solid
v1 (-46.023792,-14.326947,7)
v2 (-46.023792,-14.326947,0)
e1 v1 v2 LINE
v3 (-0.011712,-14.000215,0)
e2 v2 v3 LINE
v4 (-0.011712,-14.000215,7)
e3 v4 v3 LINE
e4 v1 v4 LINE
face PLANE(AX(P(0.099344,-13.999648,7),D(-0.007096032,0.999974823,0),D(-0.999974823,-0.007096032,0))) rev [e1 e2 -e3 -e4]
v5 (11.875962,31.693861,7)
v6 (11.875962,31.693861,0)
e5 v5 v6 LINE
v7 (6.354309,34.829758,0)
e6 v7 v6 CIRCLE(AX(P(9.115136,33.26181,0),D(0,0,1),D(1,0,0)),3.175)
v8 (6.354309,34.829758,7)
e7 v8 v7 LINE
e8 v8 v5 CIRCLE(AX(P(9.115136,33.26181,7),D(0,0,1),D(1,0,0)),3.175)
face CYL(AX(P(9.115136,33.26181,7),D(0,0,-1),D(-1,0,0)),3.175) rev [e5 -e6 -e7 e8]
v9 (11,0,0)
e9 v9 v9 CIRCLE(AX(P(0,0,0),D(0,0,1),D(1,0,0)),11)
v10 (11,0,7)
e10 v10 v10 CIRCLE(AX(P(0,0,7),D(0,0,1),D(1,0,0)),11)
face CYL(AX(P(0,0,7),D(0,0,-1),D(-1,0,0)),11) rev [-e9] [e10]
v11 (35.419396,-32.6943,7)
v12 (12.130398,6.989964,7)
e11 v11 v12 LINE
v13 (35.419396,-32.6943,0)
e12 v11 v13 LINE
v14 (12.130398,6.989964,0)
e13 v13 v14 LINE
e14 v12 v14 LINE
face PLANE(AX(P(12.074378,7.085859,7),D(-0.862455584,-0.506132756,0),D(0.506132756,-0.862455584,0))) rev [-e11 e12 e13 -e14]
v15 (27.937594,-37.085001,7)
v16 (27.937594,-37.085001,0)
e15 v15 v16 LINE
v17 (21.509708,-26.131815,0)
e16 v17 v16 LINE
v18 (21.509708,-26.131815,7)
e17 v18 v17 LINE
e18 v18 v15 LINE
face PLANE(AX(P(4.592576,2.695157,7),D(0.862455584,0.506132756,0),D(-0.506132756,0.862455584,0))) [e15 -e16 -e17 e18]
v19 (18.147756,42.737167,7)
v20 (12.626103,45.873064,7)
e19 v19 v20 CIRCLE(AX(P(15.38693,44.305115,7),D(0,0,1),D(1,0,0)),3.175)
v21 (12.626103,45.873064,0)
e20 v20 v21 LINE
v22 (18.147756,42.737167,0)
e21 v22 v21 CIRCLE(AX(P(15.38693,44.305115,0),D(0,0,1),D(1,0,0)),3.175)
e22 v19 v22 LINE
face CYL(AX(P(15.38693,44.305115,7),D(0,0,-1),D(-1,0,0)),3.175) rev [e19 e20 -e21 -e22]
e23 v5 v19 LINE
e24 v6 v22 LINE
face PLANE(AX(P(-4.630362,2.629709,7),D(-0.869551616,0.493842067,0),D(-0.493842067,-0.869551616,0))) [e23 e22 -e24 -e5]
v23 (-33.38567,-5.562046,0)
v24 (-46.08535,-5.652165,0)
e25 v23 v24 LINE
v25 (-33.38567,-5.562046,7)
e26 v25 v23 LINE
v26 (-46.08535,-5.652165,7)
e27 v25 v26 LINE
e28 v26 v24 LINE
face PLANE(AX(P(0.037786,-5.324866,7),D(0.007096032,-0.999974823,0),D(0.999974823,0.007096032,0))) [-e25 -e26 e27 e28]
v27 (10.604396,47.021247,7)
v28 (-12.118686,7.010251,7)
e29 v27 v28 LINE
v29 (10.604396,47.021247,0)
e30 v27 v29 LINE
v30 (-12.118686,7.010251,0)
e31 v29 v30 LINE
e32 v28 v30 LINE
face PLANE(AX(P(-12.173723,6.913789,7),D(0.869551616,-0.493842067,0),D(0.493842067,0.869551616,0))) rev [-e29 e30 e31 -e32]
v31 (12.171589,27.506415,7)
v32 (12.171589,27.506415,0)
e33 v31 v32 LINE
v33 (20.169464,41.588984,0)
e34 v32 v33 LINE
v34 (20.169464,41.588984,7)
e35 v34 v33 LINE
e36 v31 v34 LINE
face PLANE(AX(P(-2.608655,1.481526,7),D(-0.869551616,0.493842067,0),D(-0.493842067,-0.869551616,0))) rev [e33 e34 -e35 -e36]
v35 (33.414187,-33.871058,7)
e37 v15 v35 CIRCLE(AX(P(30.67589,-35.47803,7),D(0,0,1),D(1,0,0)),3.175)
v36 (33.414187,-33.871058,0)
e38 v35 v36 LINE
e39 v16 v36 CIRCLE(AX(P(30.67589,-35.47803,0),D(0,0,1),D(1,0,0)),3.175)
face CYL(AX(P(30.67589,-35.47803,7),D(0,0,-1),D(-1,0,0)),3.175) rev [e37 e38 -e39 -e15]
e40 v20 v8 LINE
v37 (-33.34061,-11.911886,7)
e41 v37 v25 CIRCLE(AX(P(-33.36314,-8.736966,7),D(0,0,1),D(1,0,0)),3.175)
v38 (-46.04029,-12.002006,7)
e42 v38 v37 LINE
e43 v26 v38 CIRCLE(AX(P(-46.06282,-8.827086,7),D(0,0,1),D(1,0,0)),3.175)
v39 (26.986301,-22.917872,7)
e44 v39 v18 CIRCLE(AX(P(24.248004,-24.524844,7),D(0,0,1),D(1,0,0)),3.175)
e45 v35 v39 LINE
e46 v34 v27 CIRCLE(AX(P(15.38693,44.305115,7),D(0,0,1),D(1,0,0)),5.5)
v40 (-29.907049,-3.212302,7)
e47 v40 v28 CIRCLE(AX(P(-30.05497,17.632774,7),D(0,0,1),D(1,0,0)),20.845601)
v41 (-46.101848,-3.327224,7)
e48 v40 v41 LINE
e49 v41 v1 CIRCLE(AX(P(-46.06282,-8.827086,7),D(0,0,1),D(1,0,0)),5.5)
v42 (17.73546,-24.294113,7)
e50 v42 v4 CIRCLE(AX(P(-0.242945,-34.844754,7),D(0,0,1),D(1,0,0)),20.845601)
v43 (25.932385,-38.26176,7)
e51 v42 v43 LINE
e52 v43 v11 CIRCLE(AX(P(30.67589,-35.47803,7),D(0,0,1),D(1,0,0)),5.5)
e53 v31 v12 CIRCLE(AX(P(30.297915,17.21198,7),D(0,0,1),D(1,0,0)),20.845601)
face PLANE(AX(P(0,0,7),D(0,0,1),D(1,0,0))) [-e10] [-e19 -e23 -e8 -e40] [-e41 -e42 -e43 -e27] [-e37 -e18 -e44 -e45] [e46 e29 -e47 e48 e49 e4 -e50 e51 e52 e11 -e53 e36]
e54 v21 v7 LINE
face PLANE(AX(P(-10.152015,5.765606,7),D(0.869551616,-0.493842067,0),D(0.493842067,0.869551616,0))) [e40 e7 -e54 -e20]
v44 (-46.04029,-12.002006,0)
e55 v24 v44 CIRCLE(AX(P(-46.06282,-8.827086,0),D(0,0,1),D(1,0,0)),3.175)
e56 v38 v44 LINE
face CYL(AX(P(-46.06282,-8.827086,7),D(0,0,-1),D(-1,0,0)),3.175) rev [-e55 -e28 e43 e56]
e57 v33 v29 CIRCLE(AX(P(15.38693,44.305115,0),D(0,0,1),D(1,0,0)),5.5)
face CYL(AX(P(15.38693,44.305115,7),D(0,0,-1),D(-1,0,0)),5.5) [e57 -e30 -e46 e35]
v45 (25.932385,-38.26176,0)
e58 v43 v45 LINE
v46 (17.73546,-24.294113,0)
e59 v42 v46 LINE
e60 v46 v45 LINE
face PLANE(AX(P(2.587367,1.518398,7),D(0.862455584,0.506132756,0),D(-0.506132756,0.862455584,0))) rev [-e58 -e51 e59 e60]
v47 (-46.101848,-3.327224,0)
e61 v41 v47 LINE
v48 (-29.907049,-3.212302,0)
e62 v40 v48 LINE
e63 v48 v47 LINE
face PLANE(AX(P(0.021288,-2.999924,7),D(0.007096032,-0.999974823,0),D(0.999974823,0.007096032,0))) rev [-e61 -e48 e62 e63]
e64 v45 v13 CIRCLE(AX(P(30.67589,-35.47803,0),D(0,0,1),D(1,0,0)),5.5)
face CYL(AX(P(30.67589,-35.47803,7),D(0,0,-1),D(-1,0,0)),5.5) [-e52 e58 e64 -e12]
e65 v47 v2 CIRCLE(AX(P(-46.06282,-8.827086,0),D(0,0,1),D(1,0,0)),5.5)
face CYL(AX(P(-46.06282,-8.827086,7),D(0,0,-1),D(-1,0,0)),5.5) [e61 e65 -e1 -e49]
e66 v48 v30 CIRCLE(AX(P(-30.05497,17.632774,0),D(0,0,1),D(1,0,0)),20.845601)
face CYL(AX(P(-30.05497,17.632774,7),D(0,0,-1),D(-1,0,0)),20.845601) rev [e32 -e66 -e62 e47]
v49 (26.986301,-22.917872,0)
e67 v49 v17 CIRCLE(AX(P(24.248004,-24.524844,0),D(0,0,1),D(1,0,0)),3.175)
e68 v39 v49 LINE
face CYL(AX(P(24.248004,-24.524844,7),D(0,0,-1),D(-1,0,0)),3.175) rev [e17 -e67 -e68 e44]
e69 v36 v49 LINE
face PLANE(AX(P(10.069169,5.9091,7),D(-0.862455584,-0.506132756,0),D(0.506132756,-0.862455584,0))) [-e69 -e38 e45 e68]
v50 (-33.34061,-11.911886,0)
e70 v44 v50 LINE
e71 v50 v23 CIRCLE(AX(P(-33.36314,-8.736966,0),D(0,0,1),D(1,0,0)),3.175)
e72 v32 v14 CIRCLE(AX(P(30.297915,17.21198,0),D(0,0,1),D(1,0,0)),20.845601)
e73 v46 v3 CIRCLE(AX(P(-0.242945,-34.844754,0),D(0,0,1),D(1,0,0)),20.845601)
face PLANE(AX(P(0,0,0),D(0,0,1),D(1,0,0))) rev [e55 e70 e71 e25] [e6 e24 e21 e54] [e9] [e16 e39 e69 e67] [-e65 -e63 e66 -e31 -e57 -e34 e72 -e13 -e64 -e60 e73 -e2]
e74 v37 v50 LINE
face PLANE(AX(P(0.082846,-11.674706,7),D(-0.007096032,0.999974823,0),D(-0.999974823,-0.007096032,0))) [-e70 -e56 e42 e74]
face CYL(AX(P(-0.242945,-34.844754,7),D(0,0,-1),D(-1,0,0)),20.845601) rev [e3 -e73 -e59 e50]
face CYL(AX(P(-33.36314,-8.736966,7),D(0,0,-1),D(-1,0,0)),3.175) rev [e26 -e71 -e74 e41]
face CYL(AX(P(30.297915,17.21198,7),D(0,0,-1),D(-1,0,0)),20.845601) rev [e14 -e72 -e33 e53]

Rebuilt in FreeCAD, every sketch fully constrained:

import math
import FreeCAD as App
import Part
import Sketcher
from FreeCAD import Vector
Q = App.Units.Quantity

doc = App.newDocument("Part")
params = doc.addObject("Spreadsheet::Sheet", "Params")
for row, (alias, value) in enumerate([
    ("sketch1_diameter", "22 mm"),
    ("sketch1_radius", "5.5 mm"),
    ("sketch1_length", "12.7 mm"),
    ("pad1_length", "7 mm"),
], start=1):
    params.set(f"A{row}", alias)
    params.set(f"B{row}", "=" + value)
    params.setAlias(f"B{row}", alias)

body = doc.addObject("PartDesign::Body", "Body")

# Sketch on XY plane
sketch1 = body.newObject("Sketcher::SketchObject", "Sketch")
sketch1.AttachmentSupport = (doc.getObject("XY_Plane"), [""])
sketch1.MapMode = "FlatFace"
sketch1.addGeometry([
    Part.ArcOfCircle(Part.Circle(Vector(15.4, 44.3, 0), Vector(0, 0, 1), 5.5), math.radians(-30), math.radians(150)),  # 0
    Part.LineSegment(Vector(10.6, 47, 0), Vector(-12.1, 7, 0)),  # 1
    Part.ArcOfCircle(Part.Circle(Vector(-30.1, 17.6, 0), Vector(0, 0, 1), 20.8), math.radians(-90), math.radians(-31)),  # 2
    Part.LineSegment(Vector(-29.9, -3.2, 0), Vector(-46.1, -3.3, 0)),  # 3
    Part.ArcOfCircle(Part.Circle(Vector(-46.1, -8.8, 0), Vector(0, 0, 1), 5.5), math.radians(90), math.radians(270)),  # 4
    Part.LineSegment(Vector(-46, -14.3, 0), Vector(0, -14, 0)),  # 5
    Part.ArcOfCircle(Part.Circle(Vector(-0.2, -34.8, 0), Vector(0, 0, 1), 20.8), math.radians(30), math.radians(89)),  # 6
    Part.LineSegment(Vector(17.7, -24.3, 0), Vector(25.9, -38.3, 0)),  # 7
    Part.ArcOfCircle(Part.Circle(Vector(30.7, -35.5, 0), Vector(0, 0, 1), 5.5), math.radians(-150), math.radians(30)),  # 8
    Part.LineSegment(Vector(35.4, -32.7, 0), Vector(12.1, 7, 0)),  # 9
    Part.ArcOfCircle(Part.Circle(Vector(30.3, 17.2, 0), Vector(0, 0, 1), 20.8), math.radians(150), math.radians(209)),  # 10
    Part.LineSegment(Vector(12.2, 27.5, 0), Vector(20.2, 41.6, 0)),  # 11
    Part.LineSegment(Vector(-33.3, -11.9, 0), Vector(-46, -12, 0)),  # 12
    Part.ArcOfCircle(Part.Circle(Vector(-46.1, -8.8, 0), Vector(0, 0, 1), 3.2), math.radians(90), math.radians(270)),  # 13
    Part.LineSegment(Vector(-46.1, -5.7, 0), Vector(-33.4, -5.6, 0)),  # 14
    Part.ArcOfCircle(Part.Circle(Vector(-33.4, -8.7, 0), Vector(0, 0, 1), 3.2), math.radians(-90), math.radians(90)),  # 15
    Part.LineSegment(Vector(27, -22.9, 0), Vector(33.4, -33.9, 0)),  # 16
    Part.ArcOfCircle(Part.Circle(Vector(30.7, -35.5, 0), Vector(0, 0, 1), 3.2), math.radians(-150), math.radians(30)),  # 17
    Part.LineSegment(Vector(27.9, -37.1, 0), Vector(21.5, -26.1, 0)),  # 18
    Part.ArcOfCircle(Part.Circle(Vector(24.2, -24.5, 0), Vector(0, 0, 1), 3.2), math.radians(30), math.radians(210)),  # 19
    Part.Circle(Vector(0, 0, 0), Vector(0, 0, 1), 11),  # 20
    Part.ArcOfCircle(Part.Circle(Vector(9.1, 33.3, 0), Vector(0, 0, 1), 3.2), math.radians(150), math.radians(330)),  # 21
    Part.LineSegment(Vector(6.4, 34.8, 0), Vector(12.6, 45.9, 0)),  # 22
    Part.ArcOfCircle(Part.Circle(Vector(15.4, 44.3, 0), Vector(0, 0, 1), 3.2), math.radians(-30), math.radians(150)),  # 23
    Part.LineSegment(Vector(18.1, 42.7, 0), Vector(11.9, 31.7, 0)),  # 24
], False)
sketch1.addConstraint([
    Sketcher.Constraint("Tangent", 0, 2, 1, 1),
    Sketcher.Constraint("Coincident", 1, 2, 2, 2),
    Sketcher.Constraint("Tangent", 2, 1, 3, 1),
    Sketcher.Constraint("Tangent", 3, 2, 4, 1),
    Sketcher.Constraint("Tangent", 4, 2, 5, 1),
    Sketcher.Constraint("Coincident", 5, 2, 6, 2),
    Sketcher.Constraint("Tangent", 6, 1, 7, 1),
    Sketcher.Constraint("Tangent", 7, 2, 8, 1),
    Sketcher.Constraint("Tangent", 8, 2, 9, 1),
    Sketcher.Constraint("Coincident", 9, 2, 10, 2),
    Sketcher.Constraint("Tangent", 10, 1, 11, 1),
    Sketcher.Constraint("Tangent", 11, 2, 0, 1),
    Sketcher.Constraint("Tangent", 12, 2, 13, 2),
    Sketcher.Constraint("Tangent", 13, 1, 14, 1),
    Sketcher.Constraint("Tangent", 14, 2, 15, 2),
    Sketcher.Constraint("Tangent", 15, 1, 12, 1),
    Sketcher.Constraint("Tangent", 16, 2, 17, 2),
    Sketcher.Constraint("Tangent", 17, 1, 18, 1),
    Sketcher.Constraint("Tangent", 18, 2, 19, 2),
    Sketcher.Constraint("Tangent", 19, 1, 16, 1),
    Sketcher.Constraint("Tangent", 21, 1, 22, 1),
    Sketcher.Constraint("Tangent", 22, 2, 23, 2),
    Sketcher.Constraint("Tangent", 23, 1, 24, 1),
    Sketcher.Constraint("Tangent", 24, 2, 21, 2),
    Sketcher.Constraint("Coincident", 20, 3, -1, 1),
    Sketcher.Constraint("Coincident", 13, 3, 4, 3),
    Sketcher.Constraint("Coincident", 17, 3, 8, 3),
    Sketcher.Constraint("Coincident", 23, 3, 0, 3),
    Sketcher.Constraint("Equal", 0, 4),
    Sketcher.Constraint("Equal", 2, 6),
    Sketcher.Constraint("Equal", 4, 8),
    Sketcher.Constraint("Equal", 6, 10),
    Sketcher.Constraint("Equal", 13, 15),
    Sketcher.Constraint("Equal", 15, 17),
    Sketcher.Constraint("Equal", 17, 19),
    Sketcher.Constraint("Equal", 19, 21),
    Sketcher.Constraint("Equal", 21, 23),
    Sketcher.Constraint("Parallel", 3, 5),
    Sketcher.Constraint("Parallel", 7, 9),
    Sketcher.Constraint("Parallel", 1, 11),
    Sketcher.Constraint("Parallel", 5, 12),
    Sketcher.Constraint("Parallel", 9, 16),
    Sketcher.Constraint("Parallel", 11, 22),
    Sketcher.Constraint("Equal", 1, 5),
    Sketcher.Constraint("Equal", 3, 7),
    Sketcher.Constraint("Equal", 5, 9),
    Sketcher.Constraint("Equal", 7, 11),
    Sketcher.Constraint("Equal", 14, 16),
    Sketcher.Constraint("Equal", 18, 22),
    Sketcher.Constraint("Diameter", 20, Q("22 mm")),
    Sketcher.Constraint("Radius", 0, Q("5.5 mm")),
    Sketcher.Constraint("Radius", 13, Q("3.175 mm")),
    Sketcher.Constraint("Distance", 12, Q("12.7 mm")),
    Sketcher.Constraint("Radius", 2, Q("20.845601 mm")),
    Sketcher.Constraint("DistanceY", 3, 2, 2, 3, Q("20.959998 mm")),
    Sketcher.Constraint("DistanceY", 17, 1, -1, 1, Q("37.085001 mm")),
    Sketcher.Constraint("DistanceX", 9, 2, 10, 1, Q("0.041 mm")),
    Sketcher.Constraint("DistanceY", 8, 2, -1, 1, Q("32.6943 mm")),
    Sketcher.Constraint("DistanceX", -1, 1, 19, 1, Q("26.986301 mm")),
    Sketcher.Constraint("DistanceX", 2, 3, 0, 3, Q("45.441899 mm")),
    Sketcher.Constraint("DistanceY", 4, 3, 0, 3, Q("53.132201 mm")),
    Sketcher.Constraint("DistanceX", 3, 2, 2, 1, Q("16.1948 mm")),
])
sketch1.setExpression("Constraints[49]", "Params.sketch1_diameter")
sketch1.setExpression("Constraints[50]", "Params.sketch1_radius")
sketch1.setExpression("Constraints[52]", "Params.sketch1_length")
pad1 = body.newObject("PartDesign::Pad", "Pad")
pad1.Profile = sketch1
pad1.setExpression("Length", "Params.pad1_length")

doc.recompute()
